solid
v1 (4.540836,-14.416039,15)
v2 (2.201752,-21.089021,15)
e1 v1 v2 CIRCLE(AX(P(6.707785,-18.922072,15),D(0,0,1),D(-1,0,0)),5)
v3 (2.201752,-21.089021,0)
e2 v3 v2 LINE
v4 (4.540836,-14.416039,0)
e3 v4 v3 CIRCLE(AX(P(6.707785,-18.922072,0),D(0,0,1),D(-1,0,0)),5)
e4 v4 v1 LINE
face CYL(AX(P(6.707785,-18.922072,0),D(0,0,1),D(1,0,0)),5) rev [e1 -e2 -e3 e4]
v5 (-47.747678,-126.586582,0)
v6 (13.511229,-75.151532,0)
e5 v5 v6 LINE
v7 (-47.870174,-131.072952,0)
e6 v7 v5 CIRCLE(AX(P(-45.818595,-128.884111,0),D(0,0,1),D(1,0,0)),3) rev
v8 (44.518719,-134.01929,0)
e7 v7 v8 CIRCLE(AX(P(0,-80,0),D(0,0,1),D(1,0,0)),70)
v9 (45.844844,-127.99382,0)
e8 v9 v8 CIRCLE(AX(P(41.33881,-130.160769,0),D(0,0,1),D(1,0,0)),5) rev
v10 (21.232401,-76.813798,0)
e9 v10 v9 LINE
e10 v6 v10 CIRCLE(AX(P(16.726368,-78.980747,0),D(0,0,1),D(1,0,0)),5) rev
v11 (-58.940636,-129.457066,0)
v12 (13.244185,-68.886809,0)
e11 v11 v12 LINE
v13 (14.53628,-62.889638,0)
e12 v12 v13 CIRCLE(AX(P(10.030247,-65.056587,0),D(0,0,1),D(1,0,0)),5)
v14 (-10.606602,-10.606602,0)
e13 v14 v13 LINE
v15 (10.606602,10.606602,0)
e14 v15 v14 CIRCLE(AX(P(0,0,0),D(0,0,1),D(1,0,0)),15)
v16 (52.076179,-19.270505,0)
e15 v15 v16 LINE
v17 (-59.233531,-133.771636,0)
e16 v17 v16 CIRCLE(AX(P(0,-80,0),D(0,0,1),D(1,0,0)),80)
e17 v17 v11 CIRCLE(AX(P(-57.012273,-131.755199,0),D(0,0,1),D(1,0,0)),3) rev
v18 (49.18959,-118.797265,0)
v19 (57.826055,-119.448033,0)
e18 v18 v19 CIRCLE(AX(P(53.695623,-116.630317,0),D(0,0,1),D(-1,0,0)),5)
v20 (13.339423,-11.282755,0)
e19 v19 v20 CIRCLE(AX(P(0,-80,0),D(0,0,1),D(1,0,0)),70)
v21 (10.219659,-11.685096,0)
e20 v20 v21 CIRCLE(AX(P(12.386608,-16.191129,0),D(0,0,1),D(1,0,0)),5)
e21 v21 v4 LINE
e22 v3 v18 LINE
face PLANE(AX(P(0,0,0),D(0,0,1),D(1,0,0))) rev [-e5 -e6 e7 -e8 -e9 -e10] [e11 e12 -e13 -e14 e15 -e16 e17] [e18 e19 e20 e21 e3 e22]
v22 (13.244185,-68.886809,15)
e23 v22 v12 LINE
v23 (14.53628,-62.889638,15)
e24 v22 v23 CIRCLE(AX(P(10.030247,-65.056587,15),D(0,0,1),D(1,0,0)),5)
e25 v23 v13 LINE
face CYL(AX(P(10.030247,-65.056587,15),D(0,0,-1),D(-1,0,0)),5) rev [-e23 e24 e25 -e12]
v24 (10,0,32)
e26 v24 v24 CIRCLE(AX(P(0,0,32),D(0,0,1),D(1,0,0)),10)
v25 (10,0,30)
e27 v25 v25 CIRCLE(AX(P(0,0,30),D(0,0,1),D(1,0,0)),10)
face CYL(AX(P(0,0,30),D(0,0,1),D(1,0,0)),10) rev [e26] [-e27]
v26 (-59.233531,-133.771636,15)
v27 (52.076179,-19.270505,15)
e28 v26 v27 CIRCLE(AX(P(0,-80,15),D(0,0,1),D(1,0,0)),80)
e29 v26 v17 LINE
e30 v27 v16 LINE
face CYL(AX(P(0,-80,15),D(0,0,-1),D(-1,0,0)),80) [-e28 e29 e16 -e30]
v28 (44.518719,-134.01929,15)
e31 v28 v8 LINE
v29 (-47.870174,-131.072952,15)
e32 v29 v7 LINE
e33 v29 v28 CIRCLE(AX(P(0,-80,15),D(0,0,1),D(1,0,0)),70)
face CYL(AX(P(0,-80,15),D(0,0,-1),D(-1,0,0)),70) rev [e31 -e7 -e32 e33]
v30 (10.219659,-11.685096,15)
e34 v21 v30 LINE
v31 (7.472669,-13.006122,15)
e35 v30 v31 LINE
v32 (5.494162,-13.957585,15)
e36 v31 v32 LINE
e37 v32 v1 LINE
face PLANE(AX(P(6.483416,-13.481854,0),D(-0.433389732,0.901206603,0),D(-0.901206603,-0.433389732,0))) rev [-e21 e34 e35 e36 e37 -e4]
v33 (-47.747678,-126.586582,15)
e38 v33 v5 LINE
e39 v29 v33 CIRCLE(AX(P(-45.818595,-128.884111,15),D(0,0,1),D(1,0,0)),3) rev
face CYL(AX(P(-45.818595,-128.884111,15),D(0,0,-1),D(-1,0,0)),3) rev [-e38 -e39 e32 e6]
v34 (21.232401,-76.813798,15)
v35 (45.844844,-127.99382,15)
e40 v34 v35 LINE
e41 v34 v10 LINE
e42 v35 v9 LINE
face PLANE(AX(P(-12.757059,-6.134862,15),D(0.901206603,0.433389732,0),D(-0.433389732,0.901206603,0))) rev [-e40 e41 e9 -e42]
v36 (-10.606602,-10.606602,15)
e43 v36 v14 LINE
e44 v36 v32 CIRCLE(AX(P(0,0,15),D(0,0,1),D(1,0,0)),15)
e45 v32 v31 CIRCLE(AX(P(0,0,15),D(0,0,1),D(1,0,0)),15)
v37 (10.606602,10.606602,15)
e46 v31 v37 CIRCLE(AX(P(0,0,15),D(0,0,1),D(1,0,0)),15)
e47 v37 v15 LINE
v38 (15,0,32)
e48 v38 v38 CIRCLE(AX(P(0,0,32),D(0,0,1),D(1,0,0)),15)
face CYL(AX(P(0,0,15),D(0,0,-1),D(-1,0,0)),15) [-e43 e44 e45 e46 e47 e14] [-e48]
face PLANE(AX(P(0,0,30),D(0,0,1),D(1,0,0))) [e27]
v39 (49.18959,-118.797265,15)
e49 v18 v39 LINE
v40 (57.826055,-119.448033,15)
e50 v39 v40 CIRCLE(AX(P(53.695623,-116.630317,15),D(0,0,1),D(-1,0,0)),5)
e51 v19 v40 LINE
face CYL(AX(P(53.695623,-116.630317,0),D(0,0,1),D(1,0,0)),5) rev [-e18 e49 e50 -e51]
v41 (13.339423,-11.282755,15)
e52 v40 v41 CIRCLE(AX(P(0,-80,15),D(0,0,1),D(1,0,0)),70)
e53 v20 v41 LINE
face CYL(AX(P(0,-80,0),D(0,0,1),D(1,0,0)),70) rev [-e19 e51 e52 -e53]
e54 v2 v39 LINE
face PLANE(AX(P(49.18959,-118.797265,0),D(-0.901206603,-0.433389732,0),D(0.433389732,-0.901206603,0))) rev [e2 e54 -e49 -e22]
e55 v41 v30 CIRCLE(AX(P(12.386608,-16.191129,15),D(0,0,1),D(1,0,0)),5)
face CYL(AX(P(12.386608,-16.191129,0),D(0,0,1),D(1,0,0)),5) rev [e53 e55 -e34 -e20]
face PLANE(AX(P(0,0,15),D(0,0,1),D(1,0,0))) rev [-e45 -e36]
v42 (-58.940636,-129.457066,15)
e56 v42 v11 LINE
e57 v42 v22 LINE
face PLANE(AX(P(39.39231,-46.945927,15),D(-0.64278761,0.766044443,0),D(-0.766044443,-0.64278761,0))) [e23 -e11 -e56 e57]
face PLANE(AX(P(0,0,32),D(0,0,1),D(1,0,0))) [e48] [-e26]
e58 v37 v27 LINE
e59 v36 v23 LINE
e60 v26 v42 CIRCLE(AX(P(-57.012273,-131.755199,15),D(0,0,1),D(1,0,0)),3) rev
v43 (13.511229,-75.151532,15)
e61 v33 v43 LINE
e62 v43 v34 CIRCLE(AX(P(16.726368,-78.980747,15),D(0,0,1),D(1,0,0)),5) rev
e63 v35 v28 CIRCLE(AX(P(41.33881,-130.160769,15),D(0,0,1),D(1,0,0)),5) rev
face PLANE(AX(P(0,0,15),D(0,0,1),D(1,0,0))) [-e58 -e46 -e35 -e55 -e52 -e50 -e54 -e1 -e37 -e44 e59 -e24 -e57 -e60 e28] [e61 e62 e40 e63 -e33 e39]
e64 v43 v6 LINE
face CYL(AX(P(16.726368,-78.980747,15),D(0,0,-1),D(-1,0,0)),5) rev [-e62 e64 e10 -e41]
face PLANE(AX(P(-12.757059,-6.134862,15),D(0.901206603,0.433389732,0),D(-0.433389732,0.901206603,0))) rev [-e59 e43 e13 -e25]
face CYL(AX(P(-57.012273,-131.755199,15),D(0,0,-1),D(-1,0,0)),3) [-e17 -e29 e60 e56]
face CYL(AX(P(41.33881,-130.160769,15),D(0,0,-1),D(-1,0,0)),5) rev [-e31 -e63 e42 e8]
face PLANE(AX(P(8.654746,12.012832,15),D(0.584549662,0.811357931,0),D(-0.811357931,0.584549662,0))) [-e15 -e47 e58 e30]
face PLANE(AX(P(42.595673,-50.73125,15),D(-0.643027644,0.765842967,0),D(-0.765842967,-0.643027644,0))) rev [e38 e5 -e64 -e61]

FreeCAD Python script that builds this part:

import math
import FreeCAD as App
import Part
import Sketcher
Q = App.Units.Quantity

doc = App.newDocument("Part")
params = doc.addObject("Spreadsheet::Sheet", "Params")
for row, (alias, value) in enumerate([
    ("sketch1_radius", "3 mm"),
    ("sketch1_radius2", "80 mm"),
    ("sketch1_radius3", "15 mm"),
    ("sketch1_radius4", "5 mm"),
    ("sketch1_radius5", "70 mm"),
    ("pad1_length", "15 mm"),
    ("sketch2_radius", "5 mm"),
    ("sketch2_radius2", "70 mm"),
    ("pocket1_length", "15 mm"),
    ("sketch3_diameter", "30 mm"),
    ("pad2_length", "17 mm"),
    ("sketch4_diameter", "20 mm"),
    ("pocket2_length", "2 mm"),
], start=1):
    params.set(f"A{row}", alias)
    params.set(f"B{row}", "=" + value)
    params.setAlias(f"B{row}", alias)

body = doc.addObject("PartDesign::Body", "Body")

# Sketch on XY plane
sketch1 = body.newObject("Sketcher::SketchObject", "Sketch")
sketch1.AttachmentSupport = (doc.getObject("XY_Plane"), [""])
sketch1.MapMode = "FlatFace"
sketch1.addGeometry(Part.LineSegment(App.Vector(-53.623111, -124.995133, 0), App.Vector(-58.940636, -129.457066, 0)), False)
sketch1.addGeometry(Part.ArcOfCircle(Part.Circle(App.Vector(-57.012273, -131.755199, 0), App.Vector(0, 0, 1), 3), math.radians(130), math.radians(222.232868)), False)
sketch1.addGeometry(Part.ArcOfCircle(Part.Circle(App.Vector(0, -80, 0), App.Vector(0, 0, 1), 80), math.radians(-137.767132), math.radians(49.386565)), False)
sketch1.addGeometry(Part.LineSegment(App.Vector(52.076179, -19.270505, 0), App.Vector(10.606602, 10.606602, 0)), False)
sketch1.addGeometry(Part.ArcOfCircle(Part.Circle(App.Vector(0, 0, 0), App.Vector(0, 0, 1), 15), math.radians(45), math.radians(225)), False)
sketch1.addGeometry(Part.LineSegment(App.Vector(-10.606602, -10.606602, 0), App.Vector(14.53628, -62.889638, 0)), False)
sketch1.addGeometry(Part.ArcOfCircle(Part.Circle(App.Vector(10.030247, -65.056587, 0), App.Vector(0, 0, 1), 5), math.radians(-50), math.radians(25.682874)), False)
sketch1.addGeometry(Part.LineSegment(App.Vector(13.244185, -68.886809, 0), App.Vector(-53.623111, -124.995133, 0)), False)
sketch1.addGeometry(Part.ArcOfCircle(Part.Circle(App.Vector(16.726368, -78.980747, 0), App.Vector(0, 0, 1), 5), math.radians(25.682874), math.radians(130.017956)), False)
sketch1.addGeometry(Part.LineSegment(App.Vector(21.232401, -76.813798, 0), App.Vector(45.844844, -127.99382, 0)), False)
sketch1.addGeometry(Part.ArcOfCircle(Part.Circle(App.Vector(41.33881, -130.160769, 0), App.Vector(0, 0, 1), 5), math.radians(-50.507167), math.radians(25.682874)), False)
sketch1.addGeometry(Part.ArcOfCircle(Part.Circle(App.Vector(0, -80, 0), App.Vector(0, 0, 1), 70), math.radians(-133.14599), math.radians(-50.507167)), False)
sketch1.addGeometry(Part.ArcOfCircle(Part.Circle(App.Vector(-45.818595, -128.884111, 0), App.Vector(0, 0, 1), 3), math.radians(130.017956), math.radians(226.85401)), False)
sketch1.addGeometry(Part.LineSegment(App.Vector(-47.747678, -126.586582, 0), App.Vector(13.511229, -75.151532, 0)), False)
sketch1.addConstraint(Sketcher.Constraint("Tangent", 0, 2, 1, 1))
sketch1.addConstraint(Sketcher.Constraint("Tangent", 1, 2, 2, 1))
sketch1.addConstraint(Sketcher.Constraint("Coincident", 2, 2, 3, 1))
sketch1.addConstraint(Sketcher.Constraint("Coincident", 3, 2, 4, 1))
sketch1.addConstraint(Sketcher.Constraint("Coincident", 4, 2, 5, 1))
sketch1.addConstraint(Sketcher.Constraint("Tangent", 5, 2, 6, 2))
sketch1.addConstraint(Sketcher.Constraint("Tangent", 6, 1, 7, 1))
sketch1.addConstraint(Sketcher.Constraint("Coincident", 7, 2, 0, 1))
sketch1.addConstraint(Sketcher.Constraint("Tangent", 8, 1, 9, 1))
sketch1.addConstraint(Sketcher.Constraint("Tangent", 9, 2, 10, 2))
sketch1.addConstraint(Sketcher.Constraint("Tangent", 10, 1, 11, 2))
sketch1.addConstraint(Sketcher.Constraint("Tangent", 11, 1, 12, 2))
sketch1.addConstraint(Sketcher.Constraint("Tangent", 12, 1, 13, 1))
sketch1.addConstraint(Sketcher.Constraint("Tangent", 13, 2, 8, 2))
sketch1.addConstraint(Sketcher.Constraint("Coincident", 4, 3, -1, 1))
sketch1.addConstraint(Sketcher.Constraint("Coincident", 11, 3, 2, 3))
sketch1.addConstraint(Sketcher.Constraint("Equal", 6, 8))
sketch1.addConstraint(Sketcher.Constraint("Equal", 8, 10))
sketch1.addConstraint(Sketcher.Constraint("Equal", 1, 12))
sketch1.addConstraint(Sketcher.Constraint("PointOnObject", 2, 3, -2))
sketch1.addConstraint(Sketcher.Constraint("Parallel", 0, 7))
sketch1.addConstraint(Sketcher.Constraint("Parallel", 5, 9))
sketch1.addConstraint(Sketcher.Constraint("Radius", 1, 3.0))
sketch1.addConstraint(Sketcher.Constraint("Radius", 2, 80.0))
sketch1.addConstraint(Sketcher.Constraint("Radius", 4, 15.0))
sketch1.addConstraint(Sketcher.Constraint("Radius", 6, 5.0))
sketch1.addConstraint(Sketcher.Constraint("Radius", 11, 70.0))
sketch1.addConstraint(Sketcher.Constraint("Angle", 0, Q("-140 deg")))
sketch1.addConstraint(Sketcher.Constraint("DistanceY", 2, 3, -1, 1, 80.0))
sketch1.addConstraint(Sketcher.Constraint("DistanceY", 1, 3, -1, 1, 131.755199))
sketch1.addConstraint(Sketcher.Constraint("DistanceX", -1, 1, 3, 2, 10.606602))
sketch1.addConstraint(Sketcher.Constraint("DistanceX", 4, 2, -1, 1, 10.606602))
sketch1.addConstraint(Sketcher.Constraint("DistanceX", -1, 1, 8, 1, 21.232401))
sketch1.addConstraint(Sketcher.Constraint("DistanceY", 8, 1, -1, 1, 76.813798))
sketch1.addConstraint(Sketcher.Constraint("DistanceX", 5, 2, 2, 2, 37.539899))
sketch1.addConstraint(Sketcher.Constraint("DistanceX", 1, 3, 11, 1, 9.142099))
sketch1.addConstraint(Sketcher.Constraint("DistanceX", -1, 1, 10, 3, 41.33881))
sketch1.addConstraint(Sketcher.Constraint("DistanceX", 7, 2, -1, 1, 53.623111))
sketch1.setExpression("Constraints[22]", "Params.sketch1_radius")
sketch1.setExpression("Constraints[23]", "Params.sketch1_radius2")
sketch1.setExpression("Constraints[24]", "Params.sketch1_radius3")
sketch1.setExpression("Constraints[25]", "Params.sketch1_radius4")
sketch1.setExpression("Constraints[26]", "Params.sketch1_radius5")
pad1 = body.newObject("PartDesign::Pad", "Pad")
pad1.Profile = sketch1
pad1.setExpression("Length", "Params.pad1_length")

# Sketch on XY plane
sketch2 = body.newObject("Sketcher::SketchObject", "Sketch001")
sketch2.AttachmentSupport = (doc.getObject("XY_Plane"), [""])
sketch2.MapMode = "FlatFace"
sketch2.addGeometry(Part.LineSegment(App.Vector(2.201752, -21.089021, 0), App.Vector(49.18959, -118.797265, 0)), False)
sketch2.addGeometry(Part.ArcOfCircle(Part.Circle(App.Vector(53.695623, -116.630317, 0), App.Vector(0, 0, 1), 5), math.radians(-154.317126), math.radians(-34.301199)), False)
sketch2.addGeometry(Part.ArcOfCircle(Part.Circle(App.Vector(0, -80, 0), App.Vector(0, 0, 1), 70), math.radians(-34.301199), math.radians(79.014347)), False)
sketch2.addGeometry(Part.ArcOfCircle(Part.Circle(App.Vector(12.386608, -16.191129, 0), App.Vector(0, 0, 1), 5), math.radians(79.014347), math.radians(115.682874)), False)
sketch2.addGeometry(Part.LineSegment(App.Vector(10.219659, -11.685096, 0), App.Vector(6.483416, -13.481854, 0)), False)
sketch2.addGeometry(Part.LineSegment(App.Vector(6.483416, -13.481854, 0), App.Vector(4.540836, -14.416039, 0)), False)
sketch2.addGeometry(Part.ArcOfCircle(Part.Circle(App.Vector(6.707785, -18.922072, 0), App.Vector(0, 0, 1), 5), math.radians(115.682874), math.radians(205.682874)), False)
sketch2.addConstraint(Sketcher.Constraint("Tangent", 0, 2, 1, 1))
sketch2.addConstraint(Sketcher.Constraint("Tangent", 1, 2, 2, 1))
sketch2.addConstraint(Sketcher.Constraint("Tangent", 2, 2, 3, 1))
sketch2.addConstraint(Sketcher.Constraint("Tangent", 3, 2, 4, 1))
sketch2.addConstraint(Sketcher.Constraint("Coincident", 4, 2, 5, 1))
sketch2.addConstraint(Sketcher.Constraint("Tangent", 5, 2, 6, 1))
sketch2.addConstraint(Sketcher.Constraint("Tangent", 6, 2, 0, 1))
sketch2.addConstraint(Sketcher.Constraint("Equal", 1, 3))
sketch2.addConstraint(Sketcher.Constraint("Equal", 3, 6))
sketch2.addConstraint(Sketcher.Constraint("PointOnObject", 2, 3, -2))
sketch2.addConstraint(Sketcher.Constraint("Perpendicular", 0, 4))
sketch2.addConstraint(Sketcher.Constraint("Parallel", 4, 5))
sketch2.addConstraint(Sketcher.Constraint("Radius", 1, 5.0))
sketch2.addConstraint(Sketcher.Constraint("Radius", 2, 70.0))
sketch2.addConstraint(Sketcher.Constraint("DistanceY", 2, 3, -1, 1, 80.0))
sketch2.addConstraint(Sketcher.Constraint("DistanceX", 2, 2, 1, 3, 40.356199))
sketch2.addConstraint(Sketcher.Constraint("DistanceY", 4, 2, 2, 2, 2.199099))
sketch2.addConstraint(Sketcher.Constraint("Distance", 0, 108.419362))
sketch2.addConstraint(Sketcher.Constraint("Distance", 5, 2.155532))
sketch2.setExpression("Constraints[12]", "Params.sketch2_radius")
sketch2.setExpression("Constraints[13]", "Params.sketch2_radius2")
pocket1 = body.newObject("PartDesign::Pocket", "Pocket")
pocket1.Profile = sketch2
pocket1.setExpression("Length", "Params.pocket1_length")
pocket1.Reversed = True

# Sketch on XY plane
sketch3 = body.newObject("Sketcher::SketchObject", "Sketch002")
sketch3.AttachmentSupport = (doc.getObject("XY_Plane"), [""])
sketch3.MapMode = "FlatFace"
sketch3.AttachmentOffset = App.Placement(App.Vector(0, 0, 15), App.Rotation())
sketch3.addGeometry(Part.Circle(App.Vector(0, 0, 0), App.Vector(0, 0, 1), 15), False)
sketch3.addConstraint(Sketcher.Constraint("Coincident", 0, 3, -1, 1))
sketch3.addConstraint(Sketcher.Constraint("Diameter", 0, 30.0))
sketch3.setExpression("Constraints[1]", "Params.sketch3_diameter")
pad2 = body.newObject("PartDesign::Pad", "Pad001")
pad2.Profile = sketch3
pad2.setExpression("Length", "Params.pad2_length")

# Sketch on XY plane
sketch4 = body.newObject("Sketcher::SketchObject", "Sketch003")
sketch4.AttachmentSupport = (doc.getObject("XY_Plane"), [""])
sketch4.MapMode = "FlatFace"
sketch4.AttachmentOffset = App.Placement(App.Vector(0, 0, 32), App.Rotation())
sketch4.addGeometry(Part.Circle(App.Vector(0, 0, 0), App.Vector(0, 0, 1), 10), False)
sketch4.addConstraint(Sketcher.Constraint("Coincident", 0, 3, -1, 1))
sketch4.addConstraint(Sketcher.Constraint("Diameter", 0, 20.0))
sketch4.setExpression("Constraints[1]", "Params.sketch4_diameter")
pocket2 = body.newObject("PartDesign::Pocket", "Pocket001")
pocket2.Profile = sketch4
pocket2.setExpression("Length", "Params.pocket2_length")

doc.recompute()
